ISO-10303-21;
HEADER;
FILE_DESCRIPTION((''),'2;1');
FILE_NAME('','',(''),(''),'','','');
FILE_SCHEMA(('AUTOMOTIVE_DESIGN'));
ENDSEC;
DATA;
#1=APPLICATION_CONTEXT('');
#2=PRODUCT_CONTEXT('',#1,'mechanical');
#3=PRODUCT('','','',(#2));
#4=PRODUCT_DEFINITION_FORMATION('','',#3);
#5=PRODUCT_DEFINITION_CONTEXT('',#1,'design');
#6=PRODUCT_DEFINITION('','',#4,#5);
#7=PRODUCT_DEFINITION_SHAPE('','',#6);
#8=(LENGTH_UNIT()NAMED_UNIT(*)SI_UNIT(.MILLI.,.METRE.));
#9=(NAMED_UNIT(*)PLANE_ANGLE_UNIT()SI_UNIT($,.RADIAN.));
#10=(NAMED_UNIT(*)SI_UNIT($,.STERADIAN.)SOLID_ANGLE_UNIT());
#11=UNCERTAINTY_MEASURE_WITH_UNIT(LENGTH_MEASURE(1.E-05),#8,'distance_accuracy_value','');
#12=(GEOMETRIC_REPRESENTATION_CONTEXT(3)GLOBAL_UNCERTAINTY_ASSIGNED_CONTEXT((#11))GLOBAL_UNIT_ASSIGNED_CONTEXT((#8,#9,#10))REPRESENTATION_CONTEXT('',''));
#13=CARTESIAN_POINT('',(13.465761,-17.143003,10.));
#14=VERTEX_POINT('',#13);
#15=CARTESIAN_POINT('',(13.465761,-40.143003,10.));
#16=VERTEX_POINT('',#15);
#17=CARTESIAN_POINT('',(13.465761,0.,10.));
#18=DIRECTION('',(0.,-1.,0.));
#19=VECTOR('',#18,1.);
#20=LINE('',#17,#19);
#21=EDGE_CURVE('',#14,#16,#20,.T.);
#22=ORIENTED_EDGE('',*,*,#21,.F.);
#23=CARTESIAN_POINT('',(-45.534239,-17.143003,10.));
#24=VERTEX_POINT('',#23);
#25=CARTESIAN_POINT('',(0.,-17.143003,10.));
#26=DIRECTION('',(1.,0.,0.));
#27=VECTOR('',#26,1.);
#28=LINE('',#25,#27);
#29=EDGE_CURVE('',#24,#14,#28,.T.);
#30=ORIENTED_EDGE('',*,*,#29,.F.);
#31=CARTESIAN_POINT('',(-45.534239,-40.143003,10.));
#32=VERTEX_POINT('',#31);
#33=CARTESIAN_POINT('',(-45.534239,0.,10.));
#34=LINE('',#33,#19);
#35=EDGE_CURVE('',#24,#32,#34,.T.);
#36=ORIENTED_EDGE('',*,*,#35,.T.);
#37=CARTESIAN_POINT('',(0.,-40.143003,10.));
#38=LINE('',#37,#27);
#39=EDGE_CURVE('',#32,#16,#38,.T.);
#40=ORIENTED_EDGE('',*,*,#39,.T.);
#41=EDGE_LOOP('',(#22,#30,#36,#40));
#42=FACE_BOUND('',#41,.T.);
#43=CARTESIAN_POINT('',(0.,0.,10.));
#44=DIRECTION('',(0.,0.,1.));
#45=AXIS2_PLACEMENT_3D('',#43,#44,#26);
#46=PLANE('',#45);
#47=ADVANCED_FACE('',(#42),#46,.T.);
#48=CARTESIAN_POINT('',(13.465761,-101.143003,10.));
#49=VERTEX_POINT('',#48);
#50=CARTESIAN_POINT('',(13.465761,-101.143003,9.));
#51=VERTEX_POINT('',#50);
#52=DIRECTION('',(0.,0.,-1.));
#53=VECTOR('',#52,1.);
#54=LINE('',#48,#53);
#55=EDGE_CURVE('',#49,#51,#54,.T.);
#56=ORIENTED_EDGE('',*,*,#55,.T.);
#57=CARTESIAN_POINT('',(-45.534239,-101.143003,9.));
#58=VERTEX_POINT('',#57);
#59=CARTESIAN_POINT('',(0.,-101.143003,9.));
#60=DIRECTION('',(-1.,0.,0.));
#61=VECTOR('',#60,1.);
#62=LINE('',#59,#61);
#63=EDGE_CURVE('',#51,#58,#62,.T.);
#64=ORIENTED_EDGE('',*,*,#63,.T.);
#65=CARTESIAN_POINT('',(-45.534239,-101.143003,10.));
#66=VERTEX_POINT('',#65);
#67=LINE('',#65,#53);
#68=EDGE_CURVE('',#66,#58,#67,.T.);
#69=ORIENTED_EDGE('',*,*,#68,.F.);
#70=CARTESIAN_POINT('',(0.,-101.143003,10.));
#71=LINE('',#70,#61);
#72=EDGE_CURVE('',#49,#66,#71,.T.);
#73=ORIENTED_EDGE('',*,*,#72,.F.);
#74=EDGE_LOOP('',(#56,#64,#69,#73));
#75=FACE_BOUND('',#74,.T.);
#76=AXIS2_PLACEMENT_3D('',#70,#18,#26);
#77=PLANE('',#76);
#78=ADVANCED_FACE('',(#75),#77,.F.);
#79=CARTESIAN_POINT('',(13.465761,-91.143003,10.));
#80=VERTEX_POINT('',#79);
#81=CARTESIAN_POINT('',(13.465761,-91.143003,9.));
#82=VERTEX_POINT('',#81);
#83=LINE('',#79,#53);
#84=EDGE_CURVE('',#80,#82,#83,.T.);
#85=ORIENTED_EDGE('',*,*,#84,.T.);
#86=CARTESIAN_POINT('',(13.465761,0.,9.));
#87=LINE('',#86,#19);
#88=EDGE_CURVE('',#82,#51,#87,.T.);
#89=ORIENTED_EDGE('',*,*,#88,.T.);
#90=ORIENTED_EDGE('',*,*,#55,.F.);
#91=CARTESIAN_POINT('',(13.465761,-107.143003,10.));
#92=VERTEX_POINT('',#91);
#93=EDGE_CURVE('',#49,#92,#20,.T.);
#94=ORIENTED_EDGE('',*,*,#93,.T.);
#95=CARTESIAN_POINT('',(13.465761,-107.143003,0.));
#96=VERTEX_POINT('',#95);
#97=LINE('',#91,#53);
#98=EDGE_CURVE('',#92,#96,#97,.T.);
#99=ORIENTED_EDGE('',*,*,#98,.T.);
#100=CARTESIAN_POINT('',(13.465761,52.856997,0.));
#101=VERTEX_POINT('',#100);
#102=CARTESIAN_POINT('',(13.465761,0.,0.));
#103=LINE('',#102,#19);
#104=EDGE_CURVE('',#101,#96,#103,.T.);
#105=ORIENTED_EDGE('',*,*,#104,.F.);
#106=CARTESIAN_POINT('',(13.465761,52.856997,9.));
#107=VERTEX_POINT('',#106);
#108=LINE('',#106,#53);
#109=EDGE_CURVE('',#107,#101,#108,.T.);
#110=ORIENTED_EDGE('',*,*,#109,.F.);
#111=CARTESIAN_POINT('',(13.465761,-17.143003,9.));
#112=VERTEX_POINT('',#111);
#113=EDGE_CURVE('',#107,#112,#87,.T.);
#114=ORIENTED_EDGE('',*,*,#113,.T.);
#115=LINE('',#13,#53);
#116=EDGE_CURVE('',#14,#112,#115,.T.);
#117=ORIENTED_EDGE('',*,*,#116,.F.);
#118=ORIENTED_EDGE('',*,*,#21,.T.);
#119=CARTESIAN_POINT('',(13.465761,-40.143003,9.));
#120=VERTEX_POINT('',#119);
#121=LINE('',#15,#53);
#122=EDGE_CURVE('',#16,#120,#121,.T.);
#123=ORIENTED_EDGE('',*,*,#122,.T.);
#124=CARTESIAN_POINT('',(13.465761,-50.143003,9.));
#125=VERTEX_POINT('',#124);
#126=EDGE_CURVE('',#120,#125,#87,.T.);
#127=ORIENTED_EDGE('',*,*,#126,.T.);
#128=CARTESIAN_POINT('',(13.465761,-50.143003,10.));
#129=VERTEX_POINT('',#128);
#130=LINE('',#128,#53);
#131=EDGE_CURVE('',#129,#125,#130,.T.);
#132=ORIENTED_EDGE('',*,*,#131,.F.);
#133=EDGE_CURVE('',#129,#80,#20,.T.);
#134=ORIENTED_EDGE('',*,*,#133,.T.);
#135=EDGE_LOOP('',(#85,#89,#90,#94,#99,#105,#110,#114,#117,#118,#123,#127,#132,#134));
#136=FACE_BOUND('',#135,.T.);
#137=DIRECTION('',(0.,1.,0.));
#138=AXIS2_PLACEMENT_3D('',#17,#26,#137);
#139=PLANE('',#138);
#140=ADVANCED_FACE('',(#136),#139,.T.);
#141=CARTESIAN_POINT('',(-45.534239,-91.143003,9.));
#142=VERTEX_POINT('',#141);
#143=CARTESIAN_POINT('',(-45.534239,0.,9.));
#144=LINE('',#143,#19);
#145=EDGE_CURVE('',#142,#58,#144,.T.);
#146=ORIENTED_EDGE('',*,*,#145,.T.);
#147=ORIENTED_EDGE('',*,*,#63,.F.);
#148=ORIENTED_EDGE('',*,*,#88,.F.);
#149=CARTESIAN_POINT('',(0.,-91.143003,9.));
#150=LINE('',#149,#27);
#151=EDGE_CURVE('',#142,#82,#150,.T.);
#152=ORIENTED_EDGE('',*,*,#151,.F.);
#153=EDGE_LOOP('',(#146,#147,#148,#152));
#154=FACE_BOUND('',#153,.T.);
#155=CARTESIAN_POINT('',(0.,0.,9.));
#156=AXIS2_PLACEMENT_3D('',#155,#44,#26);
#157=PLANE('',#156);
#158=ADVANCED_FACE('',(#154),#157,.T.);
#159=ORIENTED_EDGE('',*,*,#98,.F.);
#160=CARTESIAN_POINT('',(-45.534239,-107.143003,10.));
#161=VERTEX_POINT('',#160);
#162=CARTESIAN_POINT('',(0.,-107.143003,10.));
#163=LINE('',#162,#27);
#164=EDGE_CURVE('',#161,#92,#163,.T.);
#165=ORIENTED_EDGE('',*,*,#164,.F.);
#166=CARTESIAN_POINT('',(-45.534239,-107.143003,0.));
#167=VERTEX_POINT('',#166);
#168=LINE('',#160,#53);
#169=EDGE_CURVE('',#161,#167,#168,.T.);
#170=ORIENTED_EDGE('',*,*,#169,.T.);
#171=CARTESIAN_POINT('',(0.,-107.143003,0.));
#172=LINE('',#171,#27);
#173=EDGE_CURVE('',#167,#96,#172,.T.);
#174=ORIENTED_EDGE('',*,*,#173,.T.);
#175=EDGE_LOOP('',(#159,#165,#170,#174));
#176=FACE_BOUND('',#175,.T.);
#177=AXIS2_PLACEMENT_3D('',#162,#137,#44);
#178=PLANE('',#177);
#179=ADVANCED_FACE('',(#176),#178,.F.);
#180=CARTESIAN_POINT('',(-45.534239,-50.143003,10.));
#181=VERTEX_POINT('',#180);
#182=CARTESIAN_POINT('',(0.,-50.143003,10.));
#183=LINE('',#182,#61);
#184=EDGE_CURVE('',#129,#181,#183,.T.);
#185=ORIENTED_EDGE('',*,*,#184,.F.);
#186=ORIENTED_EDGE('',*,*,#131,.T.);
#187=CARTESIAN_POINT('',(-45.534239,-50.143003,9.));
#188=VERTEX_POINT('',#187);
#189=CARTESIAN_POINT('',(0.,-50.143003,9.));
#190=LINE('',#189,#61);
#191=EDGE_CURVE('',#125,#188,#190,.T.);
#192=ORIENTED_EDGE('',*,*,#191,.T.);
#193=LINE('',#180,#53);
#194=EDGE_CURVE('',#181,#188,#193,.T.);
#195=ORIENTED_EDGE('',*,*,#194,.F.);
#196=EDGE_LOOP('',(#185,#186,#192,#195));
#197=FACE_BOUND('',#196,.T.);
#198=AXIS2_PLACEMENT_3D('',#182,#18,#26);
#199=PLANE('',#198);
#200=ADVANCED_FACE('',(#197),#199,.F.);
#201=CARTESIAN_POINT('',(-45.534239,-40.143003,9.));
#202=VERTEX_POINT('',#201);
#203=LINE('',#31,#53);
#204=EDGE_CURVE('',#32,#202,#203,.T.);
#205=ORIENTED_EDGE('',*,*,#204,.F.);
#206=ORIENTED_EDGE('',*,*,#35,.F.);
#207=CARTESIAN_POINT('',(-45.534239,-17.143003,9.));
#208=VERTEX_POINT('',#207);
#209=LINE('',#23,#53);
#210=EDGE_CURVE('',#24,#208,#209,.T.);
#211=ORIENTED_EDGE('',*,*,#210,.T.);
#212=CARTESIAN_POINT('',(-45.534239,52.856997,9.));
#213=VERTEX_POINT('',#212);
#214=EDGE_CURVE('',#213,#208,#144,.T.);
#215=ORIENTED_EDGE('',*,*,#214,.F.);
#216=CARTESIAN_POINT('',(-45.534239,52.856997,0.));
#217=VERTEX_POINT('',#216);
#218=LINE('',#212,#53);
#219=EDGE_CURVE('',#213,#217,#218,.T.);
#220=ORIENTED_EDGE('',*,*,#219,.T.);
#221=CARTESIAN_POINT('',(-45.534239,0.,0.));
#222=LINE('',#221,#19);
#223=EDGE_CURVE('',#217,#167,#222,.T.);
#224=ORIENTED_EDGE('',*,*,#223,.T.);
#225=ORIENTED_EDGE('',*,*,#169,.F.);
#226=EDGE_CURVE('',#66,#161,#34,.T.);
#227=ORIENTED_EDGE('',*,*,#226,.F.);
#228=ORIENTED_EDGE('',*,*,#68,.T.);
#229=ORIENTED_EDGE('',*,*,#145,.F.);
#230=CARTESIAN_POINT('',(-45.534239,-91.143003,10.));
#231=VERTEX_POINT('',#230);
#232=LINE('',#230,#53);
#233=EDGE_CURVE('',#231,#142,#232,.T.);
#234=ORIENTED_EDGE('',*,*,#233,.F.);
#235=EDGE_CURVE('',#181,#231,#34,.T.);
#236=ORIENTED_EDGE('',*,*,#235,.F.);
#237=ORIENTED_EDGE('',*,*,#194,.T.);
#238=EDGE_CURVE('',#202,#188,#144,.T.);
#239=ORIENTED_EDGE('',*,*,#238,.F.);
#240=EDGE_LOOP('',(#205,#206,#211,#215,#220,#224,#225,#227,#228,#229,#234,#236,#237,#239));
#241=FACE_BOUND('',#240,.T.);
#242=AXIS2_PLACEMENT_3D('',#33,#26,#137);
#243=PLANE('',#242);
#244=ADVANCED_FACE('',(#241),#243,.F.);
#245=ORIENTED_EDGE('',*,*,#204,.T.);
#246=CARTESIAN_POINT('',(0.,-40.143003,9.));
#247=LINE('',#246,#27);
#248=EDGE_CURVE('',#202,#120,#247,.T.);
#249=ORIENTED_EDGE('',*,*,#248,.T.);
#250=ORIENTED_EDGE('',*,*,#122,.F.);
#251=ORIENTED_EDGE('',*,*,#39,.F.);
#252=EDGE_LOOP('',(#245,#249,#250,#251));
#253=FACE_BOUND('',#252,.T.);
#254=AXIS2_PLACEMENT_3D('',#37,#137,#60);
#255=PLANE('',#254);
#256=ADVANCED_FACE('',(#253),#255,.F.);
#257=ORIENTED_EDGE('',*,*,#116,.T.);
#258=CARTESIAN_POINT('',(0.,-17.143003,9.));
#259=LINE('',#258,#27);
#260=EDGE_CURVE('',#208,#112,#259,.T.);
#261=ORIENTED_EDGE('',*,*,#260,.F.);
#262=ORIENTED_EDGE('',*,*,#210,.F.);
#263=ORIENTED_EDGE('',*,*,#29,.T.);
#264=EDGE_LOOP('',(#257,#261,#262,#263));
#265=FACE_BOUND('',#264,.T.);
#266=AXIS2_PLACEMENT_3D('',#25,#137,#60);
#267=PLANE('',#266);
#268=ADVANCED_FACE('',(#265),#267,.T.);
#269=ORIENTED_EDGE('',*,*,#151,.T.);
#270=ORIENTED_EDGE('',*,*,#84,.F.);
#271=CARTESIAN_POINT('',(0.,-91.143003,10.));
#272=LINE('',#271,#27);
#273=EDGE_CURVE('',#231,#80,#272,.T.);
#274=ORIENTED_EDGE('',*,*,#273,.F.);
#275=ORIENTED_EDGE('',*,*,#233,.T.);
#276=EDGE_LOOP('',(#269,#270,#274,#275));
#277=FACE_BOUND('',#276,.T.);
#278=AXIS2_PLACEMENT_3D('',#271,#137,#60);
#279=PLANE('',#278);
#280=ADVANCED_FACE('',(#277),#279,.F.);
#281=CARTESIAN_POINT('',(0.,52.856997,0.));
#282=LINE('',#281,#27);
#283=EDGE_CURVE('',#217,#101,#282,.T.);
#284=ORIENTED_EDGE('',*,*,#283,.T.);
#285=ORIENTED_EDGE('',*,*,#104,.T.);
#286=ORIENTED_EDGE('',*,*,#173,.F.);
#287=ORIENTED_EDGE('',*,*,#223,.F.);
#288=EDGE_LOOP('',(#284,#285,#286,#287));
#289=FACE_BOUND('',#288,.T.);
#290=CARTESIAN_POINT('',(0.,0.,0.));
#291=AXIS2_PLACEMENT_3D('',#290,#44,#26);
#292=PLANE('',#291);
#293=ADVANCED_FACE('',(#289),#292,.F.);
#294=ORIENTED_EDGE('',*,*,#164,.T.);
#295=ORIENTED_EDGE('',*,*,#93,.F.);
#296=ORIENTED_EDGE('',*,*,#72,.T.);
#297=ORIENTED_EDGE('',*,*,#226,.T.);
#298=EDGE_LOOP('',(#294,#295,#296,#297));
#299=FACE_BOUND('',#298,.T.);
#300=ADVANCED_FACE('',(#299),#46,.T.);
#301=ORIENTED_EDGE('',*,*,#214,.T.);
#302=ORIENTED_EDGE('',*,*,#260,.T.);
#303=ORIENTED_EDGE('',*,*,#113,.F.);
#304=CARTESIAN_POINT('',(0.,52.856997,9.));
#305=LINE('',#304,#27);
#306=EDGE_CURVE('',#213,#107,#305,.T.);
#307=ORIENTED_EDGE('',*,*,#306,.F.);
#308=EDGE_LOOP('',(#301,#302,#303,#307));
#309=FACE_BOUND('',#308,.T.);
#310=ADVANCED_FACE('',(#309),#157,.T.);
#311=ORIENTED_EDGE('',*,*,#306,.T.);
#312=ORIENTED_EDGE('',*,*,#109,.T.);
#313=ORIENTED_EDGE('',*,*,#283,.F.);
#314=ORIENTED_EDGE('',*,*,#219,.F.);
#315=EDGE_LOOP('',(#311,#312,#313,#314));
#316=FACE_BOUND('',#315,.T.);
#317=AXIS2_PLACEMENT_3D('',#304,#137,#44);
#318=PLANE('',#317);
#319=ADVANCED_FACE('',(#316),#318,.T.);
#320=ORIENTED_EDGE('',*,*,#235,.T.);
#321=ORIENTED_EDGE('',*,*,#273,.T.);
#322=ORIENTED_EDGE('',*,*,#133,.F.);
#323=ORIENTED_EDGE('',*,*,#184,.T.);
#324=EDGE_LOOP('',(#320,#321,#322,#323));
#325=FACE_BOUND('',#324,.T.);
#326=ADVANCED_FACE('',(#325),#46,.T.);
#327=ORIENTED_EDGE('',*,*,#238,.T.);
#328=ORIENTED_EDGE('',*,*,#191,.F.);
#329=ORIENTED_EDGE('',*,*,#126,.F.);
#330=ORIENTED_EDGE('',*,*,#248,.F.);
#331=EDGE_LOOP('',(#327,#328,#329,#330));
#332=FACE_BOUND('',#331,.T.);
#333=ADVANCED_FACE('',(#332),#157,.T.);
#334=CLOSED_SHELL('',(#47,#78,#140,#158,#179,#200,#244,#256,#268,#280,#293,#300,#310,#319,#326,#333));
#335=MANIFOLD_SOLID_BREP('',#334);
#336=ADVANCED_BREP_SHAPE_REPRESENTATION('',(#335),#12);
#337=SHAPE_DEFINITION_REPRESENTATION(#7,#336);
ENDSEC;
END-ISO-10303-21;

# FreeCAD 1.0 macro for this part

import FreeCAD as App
import Part
import Sketcher

V = App.Vector
Q = App.Units.Quantity

doc = App.newDocument("Part")
body = doc.addObject("PartDesign::Body", "Body")

sketch1 = body.newObject("Sketcher::SketchObject", "Sketch")
sketch1.AttachmentSupport = (doc.getObject("XY_Plane"), [""])
sketch1.MapMode = "FlatFace"
sketch1.addGeometry(Part.LineSegment(V(-45.534239, -17.143003, 0), V(-45.534239, -40.143003, 0)), False)
sketch1.addGeometry(Part.LineSegment(V(-45.534239, -40.143003, 0), V(13.465761, -40.143003, 0)), False)
sketch1.addGeometry(Part.LineSegment(V(13.465761, -40.143003, 0), V(13.465761, -17.143003, 0)), False)
sketch1.addGeometry(Part.LineSegment(V(13.465761, -17.143003, 0), V(-45.534239, -17.143003, 0)), False)
sketch1.addConstraint(Sketcher.Constraint("Coincident", 0, 2, 1, 1))
sketch1.addConstraint(Sketcher.Constraint("Coincident", 1, 2, 2, 1))
sketch1.addConstraint(Sketcher.Constraint("Coincident", 2, 2, 3, 1))
sketch1.addConstraint(Sketcher.Constraint("Coincident", 3, 2, 0, 1))
sketch1.addConstraint(Sketcher.Constraint("Vertical", 0))
sketch1.addConstraint(Sketcher.Constraint("Horizontal", 1))
sketch1.addConstraint(Sketcher.Constraint("Vertical", 2))
sketch1.addConstraint(Sketcher.Constraint("Horizontal", 3))
sketch1.addConstraint(Sketcher.Constraint("DistanceX", 1, 1, 1, 2, Q("59 mm")))
sketch1.addConstraint(Sketcher.Constraint("DistanceY", 0, 2, 0, 1, Q("23 mm")))
sketch1.addConstraint(Sketcher.Constraint("DistanceX", 0, 2, -1, 1, Q("45.534239 mm")))
sketch1.addConstraint(Sketcher.Constraint("DistanceY", 0, 2, -1, 1, Q("40.143003 mm")))
pad1 = body.newObject("PartDesign::Pad", "Pad")
pad1.Profile = sketch1
pad1.Length = 10
body2 = doc.addObject("PartDesign::Body", "Body001")

sketch2 = body2.newObject("Sketcher::SketchObject", "Sketch001")
sketch2.AttachmentSupport = (doc.getObject("XY_Plane001"), [""])
sketch2.MapMode = "FlatFace"
sketch2.addGeometry(Part.LineSegment(V(-45.534239, -50.143003, 0), V(-45.534239, -91.143003, 0)), False)
sketch2.addGeometry(Part.LineSegment(V(-45.534239, -91.143003, 0), V(13.465761, -91.143003, 0)), False)
sketch2.addGeometry(Part.LineSegment(V(13.465761, -91.143003, 0), V(13.465761, -50.143003, 0)), False)
sketch2.addGeometry(Part.LineSegment(V(13.465761, -50.143003, 0), V(-45.534239, -50.143003, 0)), False)
sketch2.addConstraint(Sketcher.Constraint("Coincident", 0, 2, 1, 1))
sketch2.addConstraint(Sketcher.Constraint("Coincident", 1, 2, 2, 1))
sketch2.addConstraint(Sketcher.Constraint("Coincident", 2, 2, 3, 1))
sketch2.addConstraint(Sketcher.Constraint("Coincident", 3, 2, 0, 1))
sketch2.addConstraint(Sketcher.Constraint("Vertical", 0))
sketch2.addConstraint(Sketcher.Constraint("Horizontal", 1))
sketch2.addConstraint(Sketcher.Constraint("Vertical", 2))
sketch2.addConstraint(Sketcher.Constraint("Horizontal", 3))
sketch2.addConstraint(Sketcher.Constraint("DistanceX", 1, 1, 1, 2, Q("59 mm")))
sketch2.addConstraint(Sketcher.Constraint("DistanceY", 0, 2, 0, 1, Q("41 mm")))
sketch2.addConstraint(Sketcher.Constraint("DistanceX", 0, 2, -1, 1, Q("45.534239 mm")))
sketch2.addConstraint(Sketcher.Constraint("DistanceY", 0, 2, -1, 1, Q("91.143003 mm")))
pad2 = body2.newObject("PartDesign::Pad", "Pad001")
pad2.Profile = sketch2
pad2.Length = 10
body3 = doc.addObject("PartDesign::Body", "Body002")

sketch3 = body3.newObject("Sketcher::SketchObject", "Sketch002")
sketch3.AttachmentSupport = (doc.getObject("XY_Plane002"), [""])
sketch3.MapMode = "FlatFace"
sketch3.addGeometry(Part.LineSegment(V(-45.534239, -101.143003, 0), V(-45.534239, -107.143003, 0)), False)
sketch3.addGeometry(Part.LineSegment(V(-45.534239, -107.143003, 0), V(13.465761, -107.143003, 0)), False)
sketch3.addGeometry(Part.LineSegment(V(13.465761, -107.143003, 0), V(13.465761, -101.143003, 0)), False)
sketch3.addGeometry(Part.LineSegment(V(13.465761, -101.143003, 0), V(-45.534239, -101.143003, 0)), False)
sketch3.addConstraint(Sketcher.Constraint("Coincident", 0, 2, 1, 1))
sketch3.addConstraint(Sketcher.Constraint("Coincident", 1, 2, 2, 1))
sketch3.addConstraint(Sketcher.Constraint("Coincident", 2, 2, 3, 1))
sketch3.addConstraint(Sketcher.Constraint("Coincident", 3, 2, 0, 1))
sketch3.addConstraint(Sketcher.Constraint("Vertical", 0))
sketch3.addConstraint(Sketcher.Constraint("Horizontal", 1))
sketch3.addConstraint(Sketcher.Constraint("Vertical", 2))
sketch3.addConstraint(Sketcher.Constraint("Horizontal", 3))
sketch3.addConstraint(Sketcher.Constraint("DistanceX", 1, 1, 1, 2, Q("59 mm")))
sketch3.addConstraint(Sketcher.Constraint("DistanceY", 0, 2, 0, 1, Q("6 mm")))
sketch3.addConstraint(Sketcher.Constraint("DistanceX", 0, 2, -1, 1, Q("45.534239 mm")))
sketch3.addConstraint(Sketcher.Constraint("DistanceY", 0, 2, -1, 1, Q("107.143003 mm")))
pad3 = body3.newObject("PartDesign::Pad", "Pad002")
pad3.Profile = sketch3
pad3.Length = 10
body.AllowCompound = True
doc.recompute()

boolean = body.newObject("PartDesign::Boolean", "Boolean")
boolean.Type = "Fuse"
boolean.addObjects([body2])
doc.recompute()

boolean2 = body.newObject("PartDesign::Boolean", "Boolean001")
boolean2.Type = "Fuse"
boolean2.addObjects([body3])

sketch4 = body.newObject("Sketcher::SketchObject", "Sketch003")
sketch4.AttachmentSupport = (doc.getObject("XY_Plane"), [""])
sketch4.MapMode = "FlatFace"
sketch4.addGeometry(Part.LineSegment(V(-45.534239, 52.856997, 0), V(-45.534239, -17.143003, 0)), False)
sketch4.addGeometry(Part.LineSegment(V(-45.534239, -17.143003, 0), V(13.465761, -17.143003, 0)), False)
sketch4.addGeometry(Part.LineSegment(V(13.465761, -17.143003, 0), V(13.465761, 52.856997, 0)), False)
sketch4.addGeometry(Part.LineSegment(V(13.465761, 52.856997, 0), V(-45.534239, 52.856997, 0)), False)
sketch4.addGeometry(Part.LineSegment(V(-45.534239, -40.143003, 0), V(-45.534239, -50.143003, 0)), False)
sketch4.addGeometry(Part.LineSegment(V(-45.534239, -50.143003, 0), V(13.465761, -50.143003, 0)), False)
sketch4.addGeometry(Part.LineSegment(V(13.465761, -50.143003, 0), V(13.465761, -40.143003, 0)), False)
sketch4.addGeometry(Part.LineSegment(V(13.465761, -40.143003, 0), V(-45.534239, -40.143003, 0)), False)
sketch4.addGeometry(Part.LineSegment(V(-45.534239, -91.143003, 0), V(-45.534239, -101.143003, 0)), False)
sketch4.addGeometry(Part.LineSegment(V(-45.534239, -101.143003, 0), V(13.465761, -101.143003, 0)), False)
sketch4.addGeometry(Part.LineSegment(V(13.465761, -101.143003, 0), V(13.465761, -91.143003, 0)), False)
sketch4.addGeometry(Part.LineSegment(V(13.465761, -91.143003, 0), V(-45.534239, -91.143003, 0)), False)
sketch4.addConstraint(Sketcher.Constraint("Coincident", 0, 2, 1, 1))
sketch4.addConstraint(Sketcher.Constraint("Coincident", 1, 2, 2, 1))
sketch4.addConstraint(Sketcher.Constraint("Coincident", 2, 2, 3, 1))
sketch4.addConstraint(Sketcher.Constraint("Coincident", 3, 2, 0, 1))
sketch4.addConstraint(Sketcher.Constraint("Coincident", 4, 2, 5, 1))
sketch4.addConstraint(Sketcher.Constraint("Coincident", 5, 2, 6, 1))
sketch4.addConstraint(Sketcher.Constraint("Coincident", 6, 2, 7, 1))
sketch4.addConstraint(Sketcher.Constraint("Coincident", 7, 2, 4, 1))
sketch4.addConstraint(Sketcher.Constraint("Coincident", 8, 2, 9, 1))
sketch4.addConstraint(Sketcher.Constraint("Coincident", 9, 2, 10, 1))
sketch4.addConstraint(Sketcher.Constraint("Coincident", 10, 2, 11, 1))
sketch4.addConstraint(Sketcher.Constraint("Coincident", 11, 2, 8, 1))
sketch4.addConstraint(Sketcher.Constraint("Vertical", 0))
sketch4.addConstraint(Sketcher.Constraint("Horizontal", 1))
sketch4.addConstraint(Sketcher.Constraint("Vertical", 2))
sketch4.addConstraint(Sketcher.Constraint("Horizontal", 3))
sketch4.addConstraint(Sketcher.Constraint("Vertical", 4))
sketch4.addConstraint(Sketcher.Constraint("Horizontal", 5))
sketch4.addConstraint(Sketcher.Constraint("Vertical", 6))
sketch4.addConstraint(Sketcher.Constraint("Horizontal", 7))
sketch4.addConstraint(Sketcher.Constraint("Vertical", 8))
sketch4.addConstraint(Sketcher.Constraint("Horizontal", 9))
sketch4.addConstraint(Sketcher.Constraint("Vertical", 10))
sketch4.addConstraint(Sketcher.Constraint("Horizontal", 11))
sketch4.addConstraint(Sketcher.Constraint("Vertical", 3, 2, 4, 2))
sketch4.addConstraint(Sketcher.Constraint("Vertical", 2, 2, 5, 2))
sketch4.addConstraint(Sketcher.Constraint("Vertical", 7, 2, 8, 2))
sketch4.addConstraint(Sketcher.Constraint("Vertical", 6, 2, 9, 2))
sketch4.addConstraint(Sketcher.Constraint("Equal", 6, 8))
sketch4.addConstraint(Sketcher.Constraint("DistanceX", 1, 1, 1, 2, Q("59 mm")))
sketch4.addConstraint(Sketcher.Constraint("DistanceY", 0, 2, 0, 1, Q("70 mm")))
sketch4.addConstraint(Sketcher.Constraint("DistanceY", 4, 2, 4, 1, Q("10 mm")))
sketch4.addConstraint(Sketcher.Constraint("DistanceY", 4, 2, 0, 2, Q("33 mm")))
sketch4.addConstraint(Sketcher.Constraint("DistanceY", 8, 2, 4, 2, Q("51 mm")))
sketch4.addConstraint(Sketcher.Constraint("DistanceX", 0, 2, -1, 1, Q("45.534239 mm")))
sketch4.addConstraint(Sketcher.Constraint("DistanceY", 0, 2, -1, 1, Q("17.143003 mm")))
pad4 = body.newObject("PartDesign::Pad", "Pad003")
pad4.Profile = sketch4
pad4.Length = 9

doc.recompute()
